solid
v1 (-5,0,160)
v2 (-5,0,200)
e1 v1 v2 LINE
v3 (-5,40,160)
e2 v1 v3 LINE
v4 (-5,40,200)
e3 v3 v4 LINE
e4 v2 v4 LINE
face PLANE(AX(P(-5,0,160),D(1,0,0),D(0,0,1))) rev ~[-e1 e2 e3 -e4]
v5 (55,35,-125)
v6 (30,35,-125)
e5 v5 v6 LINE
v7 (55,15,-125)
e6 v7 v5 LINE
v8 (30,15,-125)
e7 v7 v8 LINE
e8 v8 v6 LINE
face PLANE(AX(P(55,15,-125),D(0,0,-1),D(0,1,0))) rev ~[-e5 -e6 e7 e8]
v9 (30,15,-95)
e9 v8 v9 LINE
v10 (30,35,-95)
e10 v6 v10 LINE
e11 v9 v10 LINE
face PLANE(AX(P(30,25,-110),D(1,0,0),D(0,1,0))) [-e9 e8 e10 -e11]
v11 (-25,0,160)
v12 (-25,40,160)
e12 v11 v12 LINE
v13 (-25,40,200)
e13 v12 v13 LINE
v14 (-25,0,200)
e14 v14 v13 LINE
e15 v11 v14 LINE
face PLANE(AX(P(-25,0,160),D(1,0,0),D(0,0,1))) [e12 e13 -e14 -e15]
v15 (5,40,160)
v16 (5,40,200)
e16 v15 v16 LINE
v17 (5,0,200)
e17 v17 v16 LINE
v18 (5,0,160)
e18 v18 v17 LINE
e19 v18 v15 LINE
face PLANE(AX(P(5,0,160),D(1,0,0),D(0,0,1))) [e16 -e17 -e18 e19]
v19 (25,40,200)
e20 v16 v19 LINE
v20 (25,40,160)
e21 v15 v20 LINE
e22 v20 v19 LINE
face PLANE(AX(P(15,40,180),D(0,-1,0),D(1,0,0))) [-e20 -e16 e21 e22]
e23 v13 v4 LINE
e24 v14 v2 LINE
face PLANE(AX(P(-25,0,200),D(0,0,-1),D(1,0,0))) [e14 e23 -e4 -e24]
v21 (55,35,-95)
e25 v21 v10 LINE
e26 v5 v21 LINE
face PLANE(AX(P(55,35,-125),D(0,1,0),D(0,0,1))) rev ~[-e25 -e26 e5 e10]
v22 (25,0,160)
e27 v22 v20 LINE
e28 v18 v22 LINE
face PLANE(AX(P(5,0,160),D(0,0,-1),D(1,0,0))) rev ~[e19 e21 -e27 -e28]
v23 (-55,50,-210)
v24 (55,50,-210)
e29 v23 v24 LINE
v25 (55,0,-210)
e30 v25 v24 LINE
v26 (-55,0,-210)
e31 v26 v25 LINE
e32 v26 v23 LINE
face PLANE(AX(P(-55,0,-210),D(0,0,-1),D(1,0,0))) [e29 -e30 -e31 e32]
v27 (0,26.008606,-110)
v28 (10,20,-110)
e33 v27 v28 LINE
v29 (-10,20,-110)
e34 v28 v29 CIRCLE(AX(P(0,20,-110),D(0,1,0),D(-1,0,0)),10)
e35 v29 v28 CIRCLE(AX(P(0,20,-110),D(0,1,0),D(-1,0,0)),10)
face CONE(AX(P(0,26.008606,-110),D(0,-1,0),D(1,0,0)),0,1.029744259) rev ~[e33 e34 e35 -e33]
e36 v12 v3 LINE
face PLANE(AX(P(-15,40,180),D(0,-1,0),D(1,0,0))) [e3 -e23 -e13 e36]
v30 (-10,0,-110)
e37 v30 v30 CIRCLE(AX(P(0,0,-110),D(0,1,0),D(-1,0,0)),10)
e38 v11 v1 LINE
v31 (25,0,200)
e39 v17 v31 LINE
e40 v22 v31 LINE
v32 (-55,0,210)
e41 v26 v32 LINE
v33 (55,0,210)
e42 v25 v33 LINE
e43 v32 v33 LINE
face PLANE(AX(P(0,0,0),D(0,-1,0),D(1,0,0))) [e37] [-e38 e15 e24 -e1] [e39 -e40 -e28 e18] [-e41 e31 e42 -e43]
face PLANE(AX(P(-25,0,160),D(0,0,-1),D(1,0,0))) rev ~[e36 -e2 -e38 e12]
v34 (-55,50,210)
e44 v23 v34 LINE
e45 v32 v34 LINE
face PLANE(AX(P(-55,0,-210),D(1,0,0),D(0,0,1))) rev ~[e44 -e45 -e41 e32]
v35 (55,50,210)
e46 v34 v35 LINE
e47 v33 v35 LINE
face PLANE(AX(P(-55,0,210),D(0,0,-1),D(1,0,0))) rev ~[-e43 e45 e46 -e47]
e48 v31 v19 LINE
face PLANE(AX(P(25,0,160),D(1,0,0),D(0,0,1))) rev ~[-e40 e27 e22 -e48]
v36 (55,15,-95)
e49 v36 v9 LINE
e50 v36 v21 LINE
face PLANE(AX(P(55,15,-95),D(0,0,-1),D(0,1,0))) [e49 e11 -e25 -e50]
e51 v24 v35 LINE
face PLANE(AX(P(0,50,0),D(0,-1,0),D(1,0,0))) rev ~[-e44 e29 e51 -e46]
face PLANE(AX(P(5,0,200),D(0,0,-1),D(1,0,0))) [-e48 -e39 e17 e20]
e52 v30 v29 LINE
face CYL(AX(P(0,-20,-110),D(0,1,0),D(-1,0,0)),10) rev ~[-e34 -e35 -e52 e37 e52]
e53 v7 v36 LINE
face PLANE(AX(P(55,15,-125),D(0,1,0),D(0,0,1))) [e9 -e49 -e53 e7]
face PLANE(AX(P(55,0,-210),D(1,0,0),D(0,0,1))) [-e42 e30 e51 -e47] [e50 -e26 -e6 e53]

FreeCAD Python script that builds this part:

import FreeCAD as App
import Part
import Sketcher
Q = App.Units.Quantity

doc = App.newDocument("Part")
body = doc.addObject("PartDesign::Body", "Body")

# Sketch on XZ plane
sketch1 = body.newObject("Sketcher::SketchObject", "Sketch")
sketch1.AttachmentSupport = (doc.getObject("XZ_Plane"), [""])
sketch1.MapMode = "FlatFace"
sketch1.addGeometry(Part.LineSegment(App.Vector(-55, 210, 0), App.Vector(-55, -210, 0)), False)
sketch1.addGeometry(Part.LineSegment(App.Vector(-55, -210, 0), App.Vector(55, -210, 0)), False)
sketch1.addGeometry(Part.LineSegment(App.Vector(55, -210, 0), App.Vector(55, 210, 0)), False)
sketch1.addGeometry(Part.LineSegment(App.Vector(55, 210, 0), App.Vector(-55, 210, 0)), False)
sketch1.addConstraint(Sketcher.Constraint("Coincident", 0, 2, 1, 1))
sketch1.addConstraint(Sketcher.Constraint("Coincident", 1, 2, 2, 1))
sketch1.addConstraint(Sketcher.Constraint("Coincident", 2, 2, 3, 1))
sketch1.addConstraint(Sketcher.Constraint("Coincident", 3, 2, 0, 1))
sketch1.addConstraint(Sketcher.Constraint("Vertical", 0))
sketch1.addConstraint(Sketcher.Constraint("Horizontal", 1))
sketch1.addConstraint(Sketcher.Constraint("Vertical", 2))
sketch1.addConstraint(Sketcher.Constraint("Horizontal", 3))
sketch1.addConstraint(Sketcher.Constraint("Symmetric", 0, 2, 2, 2, -1, 1))
sketch1.addConstraint(Sketcher.Constraint("DistanceX", 1, 1, 1, 2, Q("110 mm")))
sketch1.addConstraint(Sketcher.Constraint("DistanceY", 0, 2, 0, 1, Q("420 mm")))
pad1 = body.newObject("PartDesign::Pad", "Pad")
pad1.Profile = sketch1
pad1.Length = 50
pad1.Reversed = True

# Sketch on XZ plane
sketch2 = body.newObject("Sketcher::SketchObject", "Sketch001")
sketch2.AttachmentSupport = (doc.getObject("XZ_Plane"), [""])
sketch2.MapMode = "FlatFace"
sketch2.addGeometry(Part.Circle(App.Vector(0, -110, 0), App.Vector(0, 0, 1), 10), False)
sketch2.addConstraint(Sketcher.Constraint("PointOnObject", 0, 3, -2))
sketch2.addConstraint(Sketcher.Constraint("Diameter", 0, Q("20 mm")))
sketch2.addConstraint(Sketcher.Constraint("DistanceY", 0, 3, -1, 1, Q("110 mm")))
doc.recompute()
hole = body.newObject("PartDesign::Hole", "Hole")
hole.Profile = sketch2
hole.ThreadType = "None"
hole.Diameter = 20
hole.DepthType = "Dimension"
hole.Depth = 20
hole.DrillPoint = "Angled"
hole.DrillPointAngle = 118

# Sketch on XZ plane
sketch3 = body.newObject("Sketcher::SketchObject", "Sketch002")
sketch3.AttachmentSupport = (doc.getObject("XZ_Plane"), [""])
sketch3.MapMode = "FlatFace"
sketch3.addGeometry(Part.LineSegment(App.Vector(-25, 200, 0), App.Vector(-25, 160, 0)), False)
sketch3.addGeometry(Part.LineSegment(App.Vector(-25, 160, 0), App.Vector(-5, 160, 0)), False)
sketch3.addGeometry(Part.LineSegment(App.Vector(-5, 160, 0), App.Vector(-5, 200, 0)), False)
sketch3.addGeometry(Part.LineSegment(App.Vector(-5, 200, 0), App.Vector(-25, 200, 0)), False)
sketch3.addGeometry(Part.LineSegment(App.Vector(5, 200, 0), App.Vector(5, 160, 0)), False)
sketch3.addGeometry(Part.LineSegment(App.Vector(5, 160, 0), App.Vector(25, 160, 0)), False)
sketch3.addGeometry(Part.LineSegment(App.Vector(25, 160, 0), App.Vector(25, 200, 0)), False)
sketch3.addGeometry(Part.LineSegment(App.Vector(25, 200, 0), App.Vector(5, 200, 0)), False)
sketch3.addConstraint(Sketcher.Constraint("Coincident", 0, 2, 1, 1))
sketch3.addConstraint(Sketcher.Constraint("Coincident", 1, 2, 2, 1))
sketch3.addConstraint(Sketcher.Constraint("Coincident", 2, 2, 3, 1))
sketch3.addConstraint(Sketcher.Constraint("Coincident", 3, 2, 0, 1))
sketch3.addConstraint(Sketcher.Constraint("Coincident", 4, 2, 5, 1))
sketch3.addConstraint(Sketcher.Constraint("Coincident", 5, 2, 6, 1))
sketch3.addConstraint(Sketcher.Constraint("Coincident", 6, 2, 7, 1))
sketch3.addConstraint(Sketcher.Constraint("Coincident", 7, 2, 4, 1))
sketch3.addConstraint(Sketcher.Constraint("Vertical", 0))
sketch3.addConstraint(Sketcher.Constraint("Horizontal", 1))
sketch3.addConstraint(Sketcher.Constraint("Vertical", 2))
sketch3.addConstraint(Sketcher.Constraint("Horizontal", 3))
sketch3.addConstraint(Sketcher.Constraint("Vertical", 4))
sketch3.addConstraint(Sketcher.Constraint("Horizontal", 5))
sketch3.addConstraint(Sketcher.Constraint("Vertical", 6))
sketch3.addConstraint(Sketcher.Constraint("Horizontal", 7))
sketch3.addConstraint(Sketcher.Constraint("Symmetric", 1, 2, 4, 2, -2))
sketch3.addConstraint(Sketcher.Constraint("Symmetric", 3, 2, 6, 2, -2))
sketch3.addConstraint(Sketcher.Constraint("DistanceX", 1, 1, 1, 2, Q("20 mm")))
sketch3.addConstraint(Sketcher.Constraint("DistanceY", 0, 2, 0, 1, Q("40 mm")))
sketch3.addConstraint(Sketcher.Constraint("DistanceX", 0, 2, -1, 1, Q("25 mm")))
sketch3.addConstraint(Sketcher.Constraint("DistanceY", -1, 1, 0, 2, Q("160 mm")))
pocket1 = body.newObject("PartDesign::Pocket", "Pocket")
pocket1.Profile = sketch3
pocket1.Length = 40

# Sketch on YZ plane
sketch4 = body.newObject("Sketcher::SketchObject", "Sketch003")
sketch4.AttachmentSupport = (doc.getObject("YZ_Plane"), [""])
sketch4.MapMode = "FlatFace"
sketch4.AttachmentOffset = App.Placement(App.Vector(0, 0, 55), App.Rotation())
sketch4.addGeometry(Part.LineSegment(App.Vector(15, -95, 0), App.Vector(15, -125, 0)), False)
sketch4.addGeometry(Part.LineSegment(App.Vector(15, -125, 0), App.Vector(35, -125, 0)), False)
sketch4.addGeometry(Part.LineSegment(App.Vector(35, -125, 0), App.Vector(35, -95, 0)), False)
sketch4.addGeometry(Part.LineSegment(App.Vector(35, -95, 0), App.Vector(15, -95, 0)), False)
sketch4.addConstraint(Sketcher.Constraint("Coincident", 0, 2, 1, 1))
sketch4.addConstraint(Sketcher.Constraint("Coincident", 1, 2, 2, 1))
sketch4.addConstraint(Sketcher.Constraint("Coincident", 2, 2, 3, 1))
sketch4.addConstraint(Sketcher.Constraint("Coincident", 3, 2, 0, 1))
sketch4.addConstraint(Sketcher.Constraint("Vertical", 0))
sketch4.addConstraint(Sketcher.Constraint("Horizontal", 1))
sketch4.addConstraint(Sketcher.Constraint("Vertical", 2))
sketch4.addConstraint(Sketcher.Constraint("Horizontal", 3))
sketch4.addConstraint(Sketcher.Constraint("DistanceX", 1, 1, 1, 2, Q("20 mm")))
sketch4.addConstraint(Sketcher.Constraint("DistanceY", 0, 2, 0, 1, Q("30 mm")))
sketch4.addConstraint(Sketcher.Constraint("DistanceX", -1, 1, 0, 2, Q("15 mm")))
sketch4.addConstraint(Sketcher.Constraint("DistanceY", 0, 2, -1, 1, Q("125 mm")))
pocket2 = body.newObject("PartDesign::Pocket", "Pocket001")
pocket2.Profile = sketch4
pocket2.Length = 25

doc.recompute()
